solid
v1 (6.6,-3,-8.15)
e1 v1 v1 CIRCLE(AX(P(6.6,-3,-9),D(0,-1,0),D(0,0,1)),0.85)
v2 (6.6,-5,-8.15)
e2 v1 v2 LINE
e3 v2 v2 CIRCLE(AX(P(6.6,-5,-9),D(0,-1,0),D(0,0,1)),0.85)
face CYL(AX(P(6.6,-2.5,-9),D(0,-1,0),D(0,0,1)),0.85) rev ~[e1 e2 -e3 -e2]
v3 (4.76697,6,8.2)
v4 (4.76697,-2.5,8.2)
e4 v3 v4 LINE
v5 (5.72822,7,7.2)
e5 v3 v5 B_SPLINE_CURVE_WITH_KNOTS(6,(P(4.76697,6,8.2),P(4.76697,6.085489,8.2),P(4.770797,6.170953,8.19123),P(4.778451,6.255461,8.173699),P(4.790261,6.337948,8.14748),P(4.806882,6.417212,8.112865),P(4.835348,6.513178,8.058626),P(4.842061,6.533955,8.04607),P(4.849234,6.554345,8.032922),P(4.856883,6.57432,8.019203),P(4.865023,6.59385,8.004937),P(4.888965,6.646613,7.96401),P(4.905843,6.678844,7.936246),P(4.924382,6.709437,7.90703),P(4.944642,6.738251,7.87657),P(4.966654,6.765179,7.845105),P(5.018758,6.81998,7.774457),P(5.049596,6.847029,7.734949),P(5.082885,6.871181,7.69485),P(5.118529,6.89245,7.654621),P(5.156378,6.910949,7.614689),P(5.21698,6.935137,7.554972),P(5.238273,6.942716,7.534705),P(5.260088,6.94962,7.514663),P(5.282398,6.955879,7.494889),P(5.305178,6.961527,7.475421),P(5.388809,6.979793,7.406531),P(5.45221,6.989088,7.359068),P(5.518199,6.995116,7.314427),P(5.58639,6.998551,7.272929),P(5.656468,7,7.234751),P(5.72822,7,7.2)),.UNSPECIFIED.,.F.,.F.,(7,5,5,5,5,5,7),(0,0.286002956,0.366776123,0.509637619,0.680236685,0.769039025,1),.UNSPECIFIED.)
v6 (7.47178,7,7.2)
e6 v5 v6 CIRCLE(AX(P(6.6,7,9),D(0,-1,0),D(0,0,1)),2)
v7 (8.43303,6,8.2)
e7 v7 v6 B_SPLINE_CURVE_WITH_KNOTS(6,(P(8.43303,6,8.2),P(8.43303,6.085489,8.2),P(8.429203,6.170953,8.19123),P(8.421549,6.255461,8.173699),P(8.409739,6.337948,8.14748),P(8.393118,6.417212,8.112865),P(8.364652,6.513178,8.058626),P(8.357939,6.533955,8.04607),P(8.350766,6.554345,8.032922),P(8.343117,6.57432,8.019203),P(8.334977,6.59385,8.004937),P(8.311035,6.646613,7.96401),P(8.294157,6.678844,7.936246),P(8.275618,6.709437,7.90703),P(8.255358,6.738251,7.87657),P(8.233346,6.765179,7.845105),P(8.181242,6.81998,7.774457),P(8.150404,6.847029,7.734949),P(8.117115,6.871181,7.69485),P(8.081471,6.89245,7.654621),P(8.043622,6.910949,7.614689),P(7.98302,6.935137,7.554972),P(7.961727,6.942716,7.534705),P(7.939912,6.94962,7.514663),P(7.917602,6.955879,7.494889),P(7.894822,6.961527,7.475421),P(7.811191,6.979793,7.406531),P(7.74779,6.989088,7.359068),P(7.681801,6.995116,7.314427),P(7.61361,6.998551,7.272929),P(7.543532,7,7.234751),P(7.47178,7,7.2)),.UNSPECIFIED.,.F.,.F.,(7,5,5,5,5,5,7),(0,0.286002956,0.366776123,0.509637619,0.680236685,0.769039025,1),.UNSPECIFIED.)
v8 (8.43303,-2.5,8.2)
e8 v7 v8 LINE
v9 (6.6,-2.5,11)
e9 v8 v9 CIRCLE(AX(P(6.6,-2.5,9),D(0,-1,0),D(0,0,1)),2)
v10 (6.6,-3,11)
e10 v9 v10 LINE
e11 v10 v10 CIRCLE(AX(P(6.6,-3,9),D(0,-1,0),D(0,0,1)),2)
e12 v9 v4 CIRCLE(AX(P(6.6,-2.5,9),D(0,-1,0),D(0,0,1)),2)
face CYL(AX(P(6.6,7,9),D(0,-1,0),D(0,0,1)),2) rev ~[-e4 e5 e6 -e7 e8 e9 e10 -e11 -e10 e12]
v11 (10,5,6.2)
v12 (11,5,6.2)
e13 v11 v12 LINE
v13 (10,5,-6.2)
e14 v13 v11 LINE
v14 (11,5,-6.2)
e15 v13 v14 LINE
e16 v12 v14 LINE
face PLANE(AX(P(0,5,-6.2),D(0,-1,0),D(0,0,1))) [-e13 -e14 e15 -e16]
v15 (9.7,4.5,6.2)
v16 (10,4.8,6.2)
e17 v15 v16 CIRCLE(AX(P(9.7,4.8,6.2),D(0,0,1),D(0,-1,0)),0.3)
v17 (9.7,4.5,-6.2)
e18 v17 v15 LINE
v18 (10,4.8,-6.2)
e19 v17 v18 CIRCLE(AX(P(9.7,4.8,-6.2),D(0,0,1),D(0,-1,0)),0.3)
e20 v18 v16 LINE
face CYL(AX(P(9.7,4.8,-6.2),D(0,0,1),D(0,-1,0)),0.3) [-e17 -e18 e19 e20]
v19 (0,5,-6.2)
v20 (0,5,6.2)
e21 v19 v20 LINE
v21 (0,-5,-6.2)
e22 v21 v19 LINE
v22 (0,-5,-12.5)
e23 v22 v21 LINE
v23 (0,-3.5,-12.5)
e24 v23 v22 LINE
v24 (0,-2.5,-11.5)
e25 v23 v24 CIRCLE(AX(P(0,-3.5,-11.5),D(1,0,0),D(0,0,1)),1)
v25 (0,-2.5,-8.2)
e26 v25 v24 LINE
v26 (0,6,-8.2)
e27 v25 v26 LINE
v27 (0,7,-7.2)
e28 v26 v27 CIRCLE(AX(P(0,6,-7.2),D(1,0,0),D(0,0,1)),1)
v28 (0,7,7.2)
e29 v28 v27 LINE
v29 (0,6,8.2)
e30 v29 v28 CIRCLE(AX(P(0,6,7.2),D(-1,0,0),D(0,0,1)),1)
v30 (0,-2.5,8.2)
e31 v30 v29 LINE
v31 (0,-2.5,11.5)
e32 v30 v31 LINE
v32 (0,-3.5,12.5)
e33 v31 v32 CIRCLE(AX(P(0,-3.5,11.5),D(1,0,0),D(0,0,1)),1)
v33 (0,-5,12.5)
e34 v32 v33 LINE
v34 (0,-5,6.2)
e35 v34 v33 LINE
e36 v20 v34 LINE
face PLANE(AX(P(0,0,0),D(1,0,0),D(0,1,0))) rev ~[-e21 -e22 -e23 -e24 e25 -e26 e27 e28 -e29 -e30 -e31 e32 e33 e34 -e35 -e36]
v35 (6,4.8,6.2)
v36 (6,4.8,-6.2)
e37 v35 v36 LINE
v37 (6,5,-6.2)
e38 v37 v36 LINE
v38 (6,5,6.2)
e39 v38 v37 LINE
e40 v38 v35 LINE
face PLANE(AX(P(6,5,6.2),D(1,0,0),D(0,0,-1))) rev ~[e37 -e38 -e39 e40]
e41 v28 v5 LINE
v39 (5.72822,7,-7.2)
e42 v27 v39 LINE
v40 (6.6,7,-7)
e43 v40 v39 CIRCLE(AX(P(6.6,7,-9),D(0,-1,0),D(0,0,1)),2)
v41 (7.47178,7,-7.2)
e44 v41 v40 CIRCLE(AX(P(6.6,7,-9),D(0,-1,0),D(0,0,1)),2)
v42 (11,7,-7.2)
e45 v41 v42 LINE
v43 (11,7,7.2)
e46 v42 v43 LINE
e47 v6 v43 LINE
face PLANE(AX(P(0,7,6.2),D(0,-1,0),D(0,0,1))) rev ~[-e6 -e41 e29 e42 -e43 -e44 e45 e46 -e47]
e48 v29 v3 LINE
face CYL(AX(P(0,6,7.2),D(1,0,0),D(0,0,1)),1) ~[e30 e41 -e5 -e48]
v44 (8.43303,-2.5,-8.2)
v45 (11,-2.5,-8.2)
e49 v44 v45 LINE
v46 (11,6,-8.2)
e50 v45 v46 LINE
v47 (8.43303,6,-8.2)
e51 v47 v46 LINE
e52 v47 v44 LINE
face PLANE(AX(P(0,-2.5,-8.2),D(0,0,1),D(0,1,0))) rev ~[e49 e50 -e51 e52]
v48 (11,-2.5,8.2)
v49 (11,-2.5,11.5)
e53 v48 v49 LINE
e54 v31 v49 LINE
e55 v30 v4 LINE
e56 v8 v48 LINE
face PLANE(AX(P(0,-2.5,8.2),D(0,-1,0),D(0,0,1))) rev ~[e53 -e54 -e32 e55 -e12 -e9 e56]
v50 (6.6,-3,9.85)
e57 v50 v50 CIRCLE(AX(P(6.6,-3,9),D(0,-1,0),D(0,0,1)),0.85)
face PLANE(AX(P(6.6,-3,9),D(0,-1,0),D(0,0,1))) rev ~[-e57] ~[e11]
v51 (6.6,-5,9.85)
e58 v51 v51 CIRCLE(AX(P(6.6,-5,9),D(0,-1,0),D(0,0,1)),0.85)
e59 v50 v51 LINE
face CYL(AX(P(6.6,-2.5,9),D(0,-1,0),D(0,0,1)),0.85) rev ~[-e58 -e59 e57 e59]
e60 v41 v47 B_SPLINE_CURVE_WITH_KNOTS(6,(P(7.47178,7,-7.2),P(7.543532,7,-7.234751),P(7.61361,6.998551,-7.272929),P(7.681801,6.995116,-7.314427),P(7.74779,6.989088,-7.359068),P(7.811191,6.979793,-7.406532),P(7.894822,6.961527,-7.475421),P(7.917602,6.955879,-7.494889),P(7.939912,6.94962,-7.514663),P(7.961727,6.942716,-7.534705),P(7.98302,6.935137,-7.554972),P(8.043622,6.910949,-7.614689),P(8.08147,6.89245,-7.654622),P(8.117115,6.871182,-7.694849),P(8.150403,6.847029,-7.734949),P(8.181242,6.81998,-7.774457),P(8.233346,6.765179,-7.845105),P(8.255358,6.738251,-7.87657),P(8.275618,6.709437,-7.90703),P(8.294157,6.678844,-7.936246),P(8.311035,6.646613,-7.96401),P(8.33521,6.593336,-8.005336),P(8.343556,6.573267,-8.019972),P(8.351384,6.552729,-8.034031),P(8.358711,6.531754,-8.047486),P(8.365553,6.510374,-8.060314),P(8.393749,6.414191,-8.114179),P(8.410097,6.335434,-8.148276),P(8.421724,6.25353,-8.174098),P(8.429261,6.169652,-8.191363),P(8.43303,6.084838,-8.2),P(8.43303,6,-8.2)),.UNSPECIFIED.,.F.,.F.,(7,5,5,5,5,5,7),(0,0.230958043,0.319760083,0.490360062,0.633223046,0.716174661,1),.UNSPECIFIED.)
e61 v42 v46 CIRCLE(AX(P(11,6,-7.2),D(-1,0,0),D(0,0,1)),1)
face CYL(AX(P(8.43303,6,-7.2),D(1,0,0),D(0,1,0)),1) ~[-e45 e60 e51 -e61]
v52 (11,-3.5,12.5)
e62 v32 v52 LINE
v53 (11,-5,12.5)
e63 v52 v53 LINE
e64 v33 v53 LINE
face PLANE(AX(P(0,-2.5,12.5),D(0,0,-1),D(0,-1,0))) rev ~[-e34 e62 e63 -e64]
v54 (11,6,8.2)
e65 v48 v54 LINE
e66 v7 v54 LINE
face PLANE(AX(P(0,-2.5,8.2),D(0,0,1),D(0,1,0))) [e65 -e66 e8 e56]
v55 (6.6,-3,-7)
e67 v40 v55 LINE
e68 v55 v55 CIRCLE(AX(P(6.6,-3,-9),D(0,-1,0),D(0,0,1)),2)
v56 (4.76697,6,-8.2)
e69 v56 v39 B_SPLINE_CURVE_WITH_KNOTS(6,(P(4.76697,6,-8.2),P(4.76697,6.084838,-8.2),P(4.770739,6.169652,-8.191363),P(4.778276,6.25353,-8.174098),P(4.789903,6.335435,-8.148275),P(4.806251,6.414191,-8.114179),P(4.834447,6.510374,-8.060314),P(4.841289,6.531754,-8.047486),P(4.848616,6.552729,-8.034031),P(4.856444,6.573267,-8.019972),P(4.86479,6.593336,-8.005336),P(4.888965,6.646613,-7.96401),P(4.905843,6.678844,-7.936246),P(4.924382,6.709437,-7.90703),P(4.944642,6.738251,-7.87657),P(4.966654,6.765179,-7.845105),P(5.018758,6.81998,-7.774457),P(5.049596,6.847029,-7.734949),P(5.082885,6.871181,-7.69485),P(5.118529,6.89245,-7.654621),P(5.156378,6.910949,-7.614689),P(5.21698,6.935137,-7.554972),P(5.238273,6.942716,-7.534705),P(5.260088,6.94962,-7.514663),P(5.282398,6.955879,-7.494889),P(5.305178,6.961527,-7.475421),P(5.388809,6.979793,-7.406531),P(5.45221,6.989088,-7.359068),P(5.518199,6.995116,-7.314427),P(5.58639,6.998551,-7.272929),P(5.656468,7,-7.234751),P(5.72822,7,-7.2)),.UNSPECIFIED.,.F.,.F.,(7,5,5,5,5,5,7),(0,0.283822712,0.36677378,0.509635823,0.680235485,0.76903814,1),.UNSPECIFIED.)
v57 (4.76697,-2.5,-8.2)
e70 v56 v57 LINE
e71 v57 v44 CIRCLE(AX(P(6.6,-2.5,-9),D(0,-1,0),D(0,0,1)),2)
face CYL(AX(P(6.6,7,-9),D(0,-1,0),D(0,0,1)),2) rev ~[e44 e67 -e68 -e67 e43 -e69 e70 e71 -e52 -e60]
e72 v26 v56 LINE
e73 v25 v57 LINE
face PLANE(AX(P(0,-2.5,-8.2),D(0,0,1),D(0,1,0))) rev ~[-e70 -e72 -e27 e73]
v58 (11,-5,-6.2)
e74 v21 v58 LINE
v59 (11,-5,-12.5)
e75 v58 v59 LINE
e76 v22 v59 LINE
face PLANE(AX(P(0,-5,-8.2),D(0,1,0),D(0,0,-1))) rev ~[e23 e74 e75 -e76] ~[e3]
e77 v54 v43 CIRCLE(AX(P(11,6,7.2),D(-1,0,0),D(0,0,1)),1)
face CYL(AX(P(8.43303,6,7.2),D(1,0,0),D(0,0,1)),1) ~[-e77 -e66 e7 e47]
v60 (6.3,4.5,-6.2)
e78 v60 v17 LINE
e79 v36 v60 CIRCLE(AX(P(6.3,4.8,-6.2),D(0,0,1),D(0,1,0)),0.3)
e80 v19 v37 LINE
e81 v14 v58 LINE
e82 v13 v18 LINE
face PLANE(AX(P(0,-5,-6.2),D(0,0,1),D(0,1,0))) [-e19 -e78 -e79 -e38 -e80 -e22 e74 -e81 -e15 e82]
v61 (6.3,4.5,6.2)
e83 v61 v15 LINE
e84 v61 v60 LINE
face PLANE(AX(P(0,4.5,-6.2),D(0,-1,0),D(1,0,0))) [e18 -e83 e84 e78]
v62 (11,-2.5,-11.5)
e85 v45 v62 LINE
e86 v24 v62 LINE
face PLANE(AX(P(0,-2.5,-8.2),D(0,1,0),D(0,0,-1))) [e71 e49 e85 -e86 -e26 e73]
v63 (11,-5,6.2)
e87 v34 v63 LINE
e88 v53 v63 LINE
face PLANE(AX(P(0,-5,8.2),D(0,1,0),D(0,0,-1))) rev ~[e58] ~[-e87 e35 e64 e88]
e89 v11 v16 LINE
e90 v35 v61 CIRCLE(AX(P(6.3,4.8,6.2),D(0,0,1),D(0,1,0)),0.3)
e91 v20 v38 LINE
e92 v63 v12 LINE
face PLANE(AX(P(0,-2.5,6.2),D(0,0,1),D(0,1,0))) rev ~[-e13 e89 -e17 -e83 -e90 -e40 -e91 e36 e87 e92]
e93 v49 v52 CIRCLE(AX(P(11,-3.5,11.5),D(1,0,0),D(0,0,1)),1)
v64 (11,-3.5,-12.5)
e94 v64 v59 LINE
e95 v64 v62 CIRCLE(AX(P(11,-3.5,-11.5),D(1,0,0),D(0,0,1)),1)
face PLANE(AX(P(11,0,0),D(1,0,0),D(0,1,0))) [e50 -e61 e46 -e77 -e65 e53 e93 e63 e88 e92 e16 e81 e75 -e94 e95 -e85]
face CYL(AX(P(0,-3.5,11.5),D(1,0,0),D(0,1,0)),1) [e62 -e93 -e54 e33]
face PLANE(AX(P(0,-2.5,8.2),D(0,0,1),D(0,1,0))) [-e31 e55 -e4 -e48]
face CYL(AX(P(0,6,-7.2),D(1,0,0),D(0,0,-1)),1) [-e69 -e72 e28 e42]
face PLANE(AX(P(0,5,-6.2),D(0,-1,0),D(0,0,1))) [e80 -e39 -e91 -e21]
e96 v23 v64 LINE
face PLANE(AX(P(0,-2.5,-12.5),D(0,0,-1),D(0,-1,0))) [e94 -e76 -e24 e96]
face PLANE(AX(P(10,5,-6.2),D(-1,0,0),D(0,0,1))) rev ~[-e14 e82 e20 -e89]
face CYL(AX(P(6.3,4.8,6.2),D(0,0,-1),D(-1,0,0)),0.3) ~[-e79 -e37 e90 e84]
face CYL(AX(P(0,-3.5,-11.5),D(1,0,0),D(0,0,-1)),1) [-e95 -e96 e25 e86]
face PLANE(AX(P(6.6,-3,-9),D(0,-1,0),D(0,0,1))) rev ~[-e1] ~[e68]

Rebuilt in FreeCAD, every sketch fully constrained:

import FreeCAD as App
import Part
import Sketcher
Q = App.Units.Quantity


def edges_at(feature, points):
    """Names of the edges that pass closest to the given points."""
    edges = feature.Shape.Edges
    near = lambda p: min(range(len(edges)), key=lambda i: edges[i].distToShape(Part.Vertex(*p))[0])
    return sorted({f"Edge{near(p) + 1}" for p in points})

doc = App.newDocument("Part")
body = doc.addObject("PartDesign::Body", "Body")

sketch1 = body.newObject("Sketcher::SketchObject", "Sketch")
sketch1.AttachmentSupport = (doc.getObject("YZ_Plane"), [""])
sketch1.MapMode = "FlatFace"
sketch1.addGeometry([
    Part.LineSegment(App.Vector(-2.5, 8.2, 0), App.Vector(-2.5, 12.5, 0)),
    Part.LineSegment(App.Vector(-2.5, 12.5, 0), App.Vector(-5, 12.5, 0)),
    Part.LineSegment(App.Vector(-5, 12.5, 0), App.Vector(-5, 6.2, 0)),
    Part.LineSegment(App.Vector(-5, 6.2, 0), App.Vector(5, 6.2, 0)),
    Part.LineSegment(App.Vector(5, 6.2, 0), App.Vector(5, -6.2, 0)),
    Part.LineSegment(App.Vector(5, -6.2, 0), App.Vector(-5, -6.2, 0)),
    Part.LineSegment(App.Vector(-5, -6.2, 0), App.Vector(-5, -12.5, 0)),
    Part.LineSegment(App.Vector(-5, -12.5, 0), App.Vector(-2.5, -12.5, 0)),
    Part.LineSegment(App.Vector(-2.5, -12.5, 0), App.Vector(-2.5, -8.2, 0)),
    Part.LineSegment(App.Vector(-2.5, -8.2, 0), App.Vector(7, -8.2, 0)),
    Part.LineSegment(App.Vector(7, -8.2, 0), App.Vector(7, 8.2, 0)),
    Part.LineSegment(App.Vector(7, 8.2, 0), App.Vector(-2.5, 8.2, 0)),
], False)
sketch1.addConstraint([
    Sketcher.Constraint("Coincident", 0, 2, 1, 1),
    Sketcher.Constraint("Coincident", 1, 2, 2, 1),
    Sketcher.Constraint("Coincident", 2, 2, 3, 1),
    Sketcher.Constraint("Coincident", 3, 2, 4, 1),
    Sketcher.Constraint("Coincident", 4, 2, 5, 1),
    Sketcher.Constraint("Coincident", 5, 2, 6, 1),
    Sketcher.Constraint("Coincident", 6, 2, 7, 1),
    Sketcher.Constraint("Coincident", 7, 2, 8, 1),
    Sketcher.Constraint("Coincident", 8, 2, 9, 1),
    Sketcher.Constraint("Coincident", 9, 2, 10, 1),
    Sketcher.Constraint("Coincident", 10, 2, 11, 1),
    Sketcher.Constraint("Coincident", 11, 2, 0, 1),
    Sketcher.Constraint("Vertical", 0),
    Sketcher.Constraint("Horizontal", 1),
    Sketcher.Constraint("Vertical", 2),
    Sketcher.Constraint("Horizontal", 3),
    Sketcher.Constraint("Vertical", 4),
    Sketcher.Constraint("Horizontal", 5),
    Sketcher.Constraint("Vertical", 6),
    Sketcher.Constraint("Horizontal", 7),
    Sketcher.Constraint("Vertical", 8),
    Sketcher.Constraint("Horizontal", 9),
    Sketcher.Constraint("Vertical", 10),
    Sketcher.Constraint("Horizontal", 11),
    Sketcher.Constraint("Symmetric", 2, 2, 4, 2, -1, 1),
    Sketcher.Constraint("Symmetric", 1, 2, 6, 2, -1),
    Sketcher.Constraint("Symmetric", 8, 2, 11, 2, -1),
    Sketcher.Constraint("DistanceX", 3, 1, 3, 2, Q("10 mm")),
    Sketcher.Constraint("DistanceX", 1, 2, 1, 1, Q("2.5 mm")),
    Sketcher.Constraint("DistanceY", 2, 2, 2, 1, Q("6.3 mm")),
    Sketcher.Constraint("DistanceY", 6, 2, 1, 2, Q("25 mm")),
    Sketcher.Constraint("DistanceY", 8, 2, 5, 2, Q("2 mm")),
    Sketcher.Constraint("DistanceX", 4, 2, 9, 2, Q("2 mm")),
])
pad1 = body.newObject("PartDesign::Pad", "Pad")
pad1.Profile = sketch1
pad1.Length = 11

sketch2 = body.newObject("Sketcher::SketchObject", "Sketch001")
sketch2.AttachmentSupport = (doc.getObject("XZ_Plane"), [""])
sketch2.MapMode = "FlatFace"
sketch2.AttachmentOffset = App.Placement(App.Vector(0, 0, 2.5), App.Rotation())
sketch2.addGeometry(Part.Circle(App.Vector(6.6, 9, 0), App.Vector(0, 0, 1), 0.8), False)
sketch2.addConstraint([
    Sketcher.Constraint("Diameter", 0, Q("1.7 mm")),
    Sketcher.Constraint("DistanceY", -1, 1, 0, 3, Q("9 mm")),
    Sketcher.Constraint("DistanceX", -1, 1, 0, 3, Q("6.6 mm")),
])
doc.recompute()
hole = body.newObject("PartDesign::Hole", "Hole")
hole.Profile = sketch2
hole.ThreadType = "None"
hole.Diameter = 1.7
hole.DepthType = "Dimension"
hole.Depth = 5.692
hole.DrillPoint = "Flat"
hole.Reversed = True

sketch3 = body.newObject("Sketcher::SketchObject", "Sketch002")
sketch3.AttachmentSupport = (doc.getObject("XZ_Plane"), [""])
sketch3.MapMode = "FlatFace"
sketch3.AttachmentOffset = App.Placement(App.Vector(0, 0, 2.5), App.Rotation())
sketch3.addGeometry(Part.Circle(App.Vector(6.6, -9, 0), App.Vector(0, 0, 1), 0.8), False)
sketch3.addConstraint([
    Sketcher.Constraint("Diameter", 0, Q("1.7 mm")),
    Sketcher.Constraint("DistanceY", 0, 3, -1, 1, Q("9 mm")),
    Sketcher.Constraint("DistanceX", -1, 1, 0, 3, Q("6.6 mm")),
])
doc.recompute()
hole2 = body.newObject("PartDesign::Hole", "Hole001")
hole2.Profile = sketch3
hole2.ThreadType = "None"
hole2.Diameter = 1.7
hole2.DepthType = "Dimension"
hole2.Depth = 5.692
hole2.DrillPoint = "Flat"
hole2.Reversed = True

sketch4 = body.newObject("Sketcher::SketchObject", "Sketch003")
sketch4.AttachmentSupport = (doc.getObject("XZ_Plane"), [""])
sketch4.MapMode = "FlatFace"
sketch4.AttachmentOffset = App.Placement(App.Vector(0, 0, -7), App.Rotation())
sketch4.addGeometry([
    Part.Circle(App.Vector(6.6, 9, 0), App.Vector(0, 0, 1), 2),
    Part.Circle(App.Vector(6.6, -9, 0), App.Vector(0, 0, 1), 2),
], False)
sketch4.addConstraint([
    Sketcher.Constraint("Equal", 0, 1),
    Sketcher.Constraint("Symmetric", 0, 3, 1, 3, -1),
    Sketcher.Constraint("Diameter", 0, Q("4 mm")),
    Sketcher.Constraint("DistanceY", -1, 1, 0, 3, Q("9 mm")),
    Sketcher.Constraint("DistanceX", -1, 1, 0, 3, Q("6.6 mm")),
])
doc.recompute()
hole3 = body.newObject("PartDesign::Hole", "Hole002")
hole3.Profile = sketch4
hole3.ThreadType = "None"
hole3.Diameter = 4
hole3.DepthType = "Dimension"
hole3.Depth = 10
hole3.DrillPoint = "Flat"
hole3.Reversed = True
doc.recompute()

fillet = body.newObject("PartDesign::Fillet", "Fillet")
fillet.Base = (hole3, edges_at(hole3, [
    (2.384, 7, -8.2),
    (2.384, 7, 8.2),
    (9.716, 7, 8.2),
    (9.716, 7, -8.2),
    (5.5, -2.5, 12.5),
    (5.5, -2.5, -12.5),
]))
fillet.Radius = 1

sketch5 = body.newObject("Sketcher::SketchObject", "Sketch004")
sketch5.AttachmentSupport = (doc.getObject("XZ_Plane"), [""])
sketch5.MapMode = "FlatFace"
sketch5.AttachmentOffset = App.Placement(App.Vector(0, 0, -5), App.Rotation())
sketch5.addGeometry([
    Part.LineSegment(App.Vector(10, -6.2, 0), App.Vector(10, 6.2, 0)),
    Part.LineSegment(App.Vector(10, 6.2, 0), App.Vector(6, 6.2, 0)),
    Part.LineSegment(App.Vector(6, 6.2, 0), App.Vector(6, -6.2, 0)),
    Part.LineSegment(App.Vector(6, -6.2, 0), App.Vector(10, -6.2, 0)),
], False)
sketch5.addConstraint([
    Sketcher.Constraint("Coincident", 0, 2, 1, 1),
    Sketcher.Constraint("Coincident", 1, 2, 2, 1),
    Sketcher.Constraint("Coincident", 2, 2, 3, 1),
    Sketcher.Constraint("Coincident", 3, 2, 0, 1),
    Sketcher.Constraint("Vertical", 0),
    Sketcher.Constraint("Horizontal", 1),
    Sketcher.Constraint("Vertical", 2),
    Sketcher.Constraint("Horizontal", 3),
    Sketcher.Constraint("DistanceX", 1, 2, 1, 1, Q("4 mm")),
    Sketcher.Constraint("DistanceY", 0, 1, 0, 2, Q("12.4 mm")),
    Sketcher.Constraint("DistanceX", -1, 1, 0, 2, Q("10 mm")),
    Sketcher.Constraint("DistanceY", -1, 1, 0, 2, Q("6.2 mm")),
])
pad2 = body.newObject("PartDesign::Pad", "Pad001")
pad2.Profile = sketch5
pad2.Length = 0.5
doc.recompute()

fillet2 = body.newObject("PartDesign::Fillet", "Fillet001")
fillet2.Base = (pad2, edges_at(pad2, [(10, 4.5, 0), (6, 4.5, 0)]))
fillet2.Radius = 0.3

doc.recompute()
